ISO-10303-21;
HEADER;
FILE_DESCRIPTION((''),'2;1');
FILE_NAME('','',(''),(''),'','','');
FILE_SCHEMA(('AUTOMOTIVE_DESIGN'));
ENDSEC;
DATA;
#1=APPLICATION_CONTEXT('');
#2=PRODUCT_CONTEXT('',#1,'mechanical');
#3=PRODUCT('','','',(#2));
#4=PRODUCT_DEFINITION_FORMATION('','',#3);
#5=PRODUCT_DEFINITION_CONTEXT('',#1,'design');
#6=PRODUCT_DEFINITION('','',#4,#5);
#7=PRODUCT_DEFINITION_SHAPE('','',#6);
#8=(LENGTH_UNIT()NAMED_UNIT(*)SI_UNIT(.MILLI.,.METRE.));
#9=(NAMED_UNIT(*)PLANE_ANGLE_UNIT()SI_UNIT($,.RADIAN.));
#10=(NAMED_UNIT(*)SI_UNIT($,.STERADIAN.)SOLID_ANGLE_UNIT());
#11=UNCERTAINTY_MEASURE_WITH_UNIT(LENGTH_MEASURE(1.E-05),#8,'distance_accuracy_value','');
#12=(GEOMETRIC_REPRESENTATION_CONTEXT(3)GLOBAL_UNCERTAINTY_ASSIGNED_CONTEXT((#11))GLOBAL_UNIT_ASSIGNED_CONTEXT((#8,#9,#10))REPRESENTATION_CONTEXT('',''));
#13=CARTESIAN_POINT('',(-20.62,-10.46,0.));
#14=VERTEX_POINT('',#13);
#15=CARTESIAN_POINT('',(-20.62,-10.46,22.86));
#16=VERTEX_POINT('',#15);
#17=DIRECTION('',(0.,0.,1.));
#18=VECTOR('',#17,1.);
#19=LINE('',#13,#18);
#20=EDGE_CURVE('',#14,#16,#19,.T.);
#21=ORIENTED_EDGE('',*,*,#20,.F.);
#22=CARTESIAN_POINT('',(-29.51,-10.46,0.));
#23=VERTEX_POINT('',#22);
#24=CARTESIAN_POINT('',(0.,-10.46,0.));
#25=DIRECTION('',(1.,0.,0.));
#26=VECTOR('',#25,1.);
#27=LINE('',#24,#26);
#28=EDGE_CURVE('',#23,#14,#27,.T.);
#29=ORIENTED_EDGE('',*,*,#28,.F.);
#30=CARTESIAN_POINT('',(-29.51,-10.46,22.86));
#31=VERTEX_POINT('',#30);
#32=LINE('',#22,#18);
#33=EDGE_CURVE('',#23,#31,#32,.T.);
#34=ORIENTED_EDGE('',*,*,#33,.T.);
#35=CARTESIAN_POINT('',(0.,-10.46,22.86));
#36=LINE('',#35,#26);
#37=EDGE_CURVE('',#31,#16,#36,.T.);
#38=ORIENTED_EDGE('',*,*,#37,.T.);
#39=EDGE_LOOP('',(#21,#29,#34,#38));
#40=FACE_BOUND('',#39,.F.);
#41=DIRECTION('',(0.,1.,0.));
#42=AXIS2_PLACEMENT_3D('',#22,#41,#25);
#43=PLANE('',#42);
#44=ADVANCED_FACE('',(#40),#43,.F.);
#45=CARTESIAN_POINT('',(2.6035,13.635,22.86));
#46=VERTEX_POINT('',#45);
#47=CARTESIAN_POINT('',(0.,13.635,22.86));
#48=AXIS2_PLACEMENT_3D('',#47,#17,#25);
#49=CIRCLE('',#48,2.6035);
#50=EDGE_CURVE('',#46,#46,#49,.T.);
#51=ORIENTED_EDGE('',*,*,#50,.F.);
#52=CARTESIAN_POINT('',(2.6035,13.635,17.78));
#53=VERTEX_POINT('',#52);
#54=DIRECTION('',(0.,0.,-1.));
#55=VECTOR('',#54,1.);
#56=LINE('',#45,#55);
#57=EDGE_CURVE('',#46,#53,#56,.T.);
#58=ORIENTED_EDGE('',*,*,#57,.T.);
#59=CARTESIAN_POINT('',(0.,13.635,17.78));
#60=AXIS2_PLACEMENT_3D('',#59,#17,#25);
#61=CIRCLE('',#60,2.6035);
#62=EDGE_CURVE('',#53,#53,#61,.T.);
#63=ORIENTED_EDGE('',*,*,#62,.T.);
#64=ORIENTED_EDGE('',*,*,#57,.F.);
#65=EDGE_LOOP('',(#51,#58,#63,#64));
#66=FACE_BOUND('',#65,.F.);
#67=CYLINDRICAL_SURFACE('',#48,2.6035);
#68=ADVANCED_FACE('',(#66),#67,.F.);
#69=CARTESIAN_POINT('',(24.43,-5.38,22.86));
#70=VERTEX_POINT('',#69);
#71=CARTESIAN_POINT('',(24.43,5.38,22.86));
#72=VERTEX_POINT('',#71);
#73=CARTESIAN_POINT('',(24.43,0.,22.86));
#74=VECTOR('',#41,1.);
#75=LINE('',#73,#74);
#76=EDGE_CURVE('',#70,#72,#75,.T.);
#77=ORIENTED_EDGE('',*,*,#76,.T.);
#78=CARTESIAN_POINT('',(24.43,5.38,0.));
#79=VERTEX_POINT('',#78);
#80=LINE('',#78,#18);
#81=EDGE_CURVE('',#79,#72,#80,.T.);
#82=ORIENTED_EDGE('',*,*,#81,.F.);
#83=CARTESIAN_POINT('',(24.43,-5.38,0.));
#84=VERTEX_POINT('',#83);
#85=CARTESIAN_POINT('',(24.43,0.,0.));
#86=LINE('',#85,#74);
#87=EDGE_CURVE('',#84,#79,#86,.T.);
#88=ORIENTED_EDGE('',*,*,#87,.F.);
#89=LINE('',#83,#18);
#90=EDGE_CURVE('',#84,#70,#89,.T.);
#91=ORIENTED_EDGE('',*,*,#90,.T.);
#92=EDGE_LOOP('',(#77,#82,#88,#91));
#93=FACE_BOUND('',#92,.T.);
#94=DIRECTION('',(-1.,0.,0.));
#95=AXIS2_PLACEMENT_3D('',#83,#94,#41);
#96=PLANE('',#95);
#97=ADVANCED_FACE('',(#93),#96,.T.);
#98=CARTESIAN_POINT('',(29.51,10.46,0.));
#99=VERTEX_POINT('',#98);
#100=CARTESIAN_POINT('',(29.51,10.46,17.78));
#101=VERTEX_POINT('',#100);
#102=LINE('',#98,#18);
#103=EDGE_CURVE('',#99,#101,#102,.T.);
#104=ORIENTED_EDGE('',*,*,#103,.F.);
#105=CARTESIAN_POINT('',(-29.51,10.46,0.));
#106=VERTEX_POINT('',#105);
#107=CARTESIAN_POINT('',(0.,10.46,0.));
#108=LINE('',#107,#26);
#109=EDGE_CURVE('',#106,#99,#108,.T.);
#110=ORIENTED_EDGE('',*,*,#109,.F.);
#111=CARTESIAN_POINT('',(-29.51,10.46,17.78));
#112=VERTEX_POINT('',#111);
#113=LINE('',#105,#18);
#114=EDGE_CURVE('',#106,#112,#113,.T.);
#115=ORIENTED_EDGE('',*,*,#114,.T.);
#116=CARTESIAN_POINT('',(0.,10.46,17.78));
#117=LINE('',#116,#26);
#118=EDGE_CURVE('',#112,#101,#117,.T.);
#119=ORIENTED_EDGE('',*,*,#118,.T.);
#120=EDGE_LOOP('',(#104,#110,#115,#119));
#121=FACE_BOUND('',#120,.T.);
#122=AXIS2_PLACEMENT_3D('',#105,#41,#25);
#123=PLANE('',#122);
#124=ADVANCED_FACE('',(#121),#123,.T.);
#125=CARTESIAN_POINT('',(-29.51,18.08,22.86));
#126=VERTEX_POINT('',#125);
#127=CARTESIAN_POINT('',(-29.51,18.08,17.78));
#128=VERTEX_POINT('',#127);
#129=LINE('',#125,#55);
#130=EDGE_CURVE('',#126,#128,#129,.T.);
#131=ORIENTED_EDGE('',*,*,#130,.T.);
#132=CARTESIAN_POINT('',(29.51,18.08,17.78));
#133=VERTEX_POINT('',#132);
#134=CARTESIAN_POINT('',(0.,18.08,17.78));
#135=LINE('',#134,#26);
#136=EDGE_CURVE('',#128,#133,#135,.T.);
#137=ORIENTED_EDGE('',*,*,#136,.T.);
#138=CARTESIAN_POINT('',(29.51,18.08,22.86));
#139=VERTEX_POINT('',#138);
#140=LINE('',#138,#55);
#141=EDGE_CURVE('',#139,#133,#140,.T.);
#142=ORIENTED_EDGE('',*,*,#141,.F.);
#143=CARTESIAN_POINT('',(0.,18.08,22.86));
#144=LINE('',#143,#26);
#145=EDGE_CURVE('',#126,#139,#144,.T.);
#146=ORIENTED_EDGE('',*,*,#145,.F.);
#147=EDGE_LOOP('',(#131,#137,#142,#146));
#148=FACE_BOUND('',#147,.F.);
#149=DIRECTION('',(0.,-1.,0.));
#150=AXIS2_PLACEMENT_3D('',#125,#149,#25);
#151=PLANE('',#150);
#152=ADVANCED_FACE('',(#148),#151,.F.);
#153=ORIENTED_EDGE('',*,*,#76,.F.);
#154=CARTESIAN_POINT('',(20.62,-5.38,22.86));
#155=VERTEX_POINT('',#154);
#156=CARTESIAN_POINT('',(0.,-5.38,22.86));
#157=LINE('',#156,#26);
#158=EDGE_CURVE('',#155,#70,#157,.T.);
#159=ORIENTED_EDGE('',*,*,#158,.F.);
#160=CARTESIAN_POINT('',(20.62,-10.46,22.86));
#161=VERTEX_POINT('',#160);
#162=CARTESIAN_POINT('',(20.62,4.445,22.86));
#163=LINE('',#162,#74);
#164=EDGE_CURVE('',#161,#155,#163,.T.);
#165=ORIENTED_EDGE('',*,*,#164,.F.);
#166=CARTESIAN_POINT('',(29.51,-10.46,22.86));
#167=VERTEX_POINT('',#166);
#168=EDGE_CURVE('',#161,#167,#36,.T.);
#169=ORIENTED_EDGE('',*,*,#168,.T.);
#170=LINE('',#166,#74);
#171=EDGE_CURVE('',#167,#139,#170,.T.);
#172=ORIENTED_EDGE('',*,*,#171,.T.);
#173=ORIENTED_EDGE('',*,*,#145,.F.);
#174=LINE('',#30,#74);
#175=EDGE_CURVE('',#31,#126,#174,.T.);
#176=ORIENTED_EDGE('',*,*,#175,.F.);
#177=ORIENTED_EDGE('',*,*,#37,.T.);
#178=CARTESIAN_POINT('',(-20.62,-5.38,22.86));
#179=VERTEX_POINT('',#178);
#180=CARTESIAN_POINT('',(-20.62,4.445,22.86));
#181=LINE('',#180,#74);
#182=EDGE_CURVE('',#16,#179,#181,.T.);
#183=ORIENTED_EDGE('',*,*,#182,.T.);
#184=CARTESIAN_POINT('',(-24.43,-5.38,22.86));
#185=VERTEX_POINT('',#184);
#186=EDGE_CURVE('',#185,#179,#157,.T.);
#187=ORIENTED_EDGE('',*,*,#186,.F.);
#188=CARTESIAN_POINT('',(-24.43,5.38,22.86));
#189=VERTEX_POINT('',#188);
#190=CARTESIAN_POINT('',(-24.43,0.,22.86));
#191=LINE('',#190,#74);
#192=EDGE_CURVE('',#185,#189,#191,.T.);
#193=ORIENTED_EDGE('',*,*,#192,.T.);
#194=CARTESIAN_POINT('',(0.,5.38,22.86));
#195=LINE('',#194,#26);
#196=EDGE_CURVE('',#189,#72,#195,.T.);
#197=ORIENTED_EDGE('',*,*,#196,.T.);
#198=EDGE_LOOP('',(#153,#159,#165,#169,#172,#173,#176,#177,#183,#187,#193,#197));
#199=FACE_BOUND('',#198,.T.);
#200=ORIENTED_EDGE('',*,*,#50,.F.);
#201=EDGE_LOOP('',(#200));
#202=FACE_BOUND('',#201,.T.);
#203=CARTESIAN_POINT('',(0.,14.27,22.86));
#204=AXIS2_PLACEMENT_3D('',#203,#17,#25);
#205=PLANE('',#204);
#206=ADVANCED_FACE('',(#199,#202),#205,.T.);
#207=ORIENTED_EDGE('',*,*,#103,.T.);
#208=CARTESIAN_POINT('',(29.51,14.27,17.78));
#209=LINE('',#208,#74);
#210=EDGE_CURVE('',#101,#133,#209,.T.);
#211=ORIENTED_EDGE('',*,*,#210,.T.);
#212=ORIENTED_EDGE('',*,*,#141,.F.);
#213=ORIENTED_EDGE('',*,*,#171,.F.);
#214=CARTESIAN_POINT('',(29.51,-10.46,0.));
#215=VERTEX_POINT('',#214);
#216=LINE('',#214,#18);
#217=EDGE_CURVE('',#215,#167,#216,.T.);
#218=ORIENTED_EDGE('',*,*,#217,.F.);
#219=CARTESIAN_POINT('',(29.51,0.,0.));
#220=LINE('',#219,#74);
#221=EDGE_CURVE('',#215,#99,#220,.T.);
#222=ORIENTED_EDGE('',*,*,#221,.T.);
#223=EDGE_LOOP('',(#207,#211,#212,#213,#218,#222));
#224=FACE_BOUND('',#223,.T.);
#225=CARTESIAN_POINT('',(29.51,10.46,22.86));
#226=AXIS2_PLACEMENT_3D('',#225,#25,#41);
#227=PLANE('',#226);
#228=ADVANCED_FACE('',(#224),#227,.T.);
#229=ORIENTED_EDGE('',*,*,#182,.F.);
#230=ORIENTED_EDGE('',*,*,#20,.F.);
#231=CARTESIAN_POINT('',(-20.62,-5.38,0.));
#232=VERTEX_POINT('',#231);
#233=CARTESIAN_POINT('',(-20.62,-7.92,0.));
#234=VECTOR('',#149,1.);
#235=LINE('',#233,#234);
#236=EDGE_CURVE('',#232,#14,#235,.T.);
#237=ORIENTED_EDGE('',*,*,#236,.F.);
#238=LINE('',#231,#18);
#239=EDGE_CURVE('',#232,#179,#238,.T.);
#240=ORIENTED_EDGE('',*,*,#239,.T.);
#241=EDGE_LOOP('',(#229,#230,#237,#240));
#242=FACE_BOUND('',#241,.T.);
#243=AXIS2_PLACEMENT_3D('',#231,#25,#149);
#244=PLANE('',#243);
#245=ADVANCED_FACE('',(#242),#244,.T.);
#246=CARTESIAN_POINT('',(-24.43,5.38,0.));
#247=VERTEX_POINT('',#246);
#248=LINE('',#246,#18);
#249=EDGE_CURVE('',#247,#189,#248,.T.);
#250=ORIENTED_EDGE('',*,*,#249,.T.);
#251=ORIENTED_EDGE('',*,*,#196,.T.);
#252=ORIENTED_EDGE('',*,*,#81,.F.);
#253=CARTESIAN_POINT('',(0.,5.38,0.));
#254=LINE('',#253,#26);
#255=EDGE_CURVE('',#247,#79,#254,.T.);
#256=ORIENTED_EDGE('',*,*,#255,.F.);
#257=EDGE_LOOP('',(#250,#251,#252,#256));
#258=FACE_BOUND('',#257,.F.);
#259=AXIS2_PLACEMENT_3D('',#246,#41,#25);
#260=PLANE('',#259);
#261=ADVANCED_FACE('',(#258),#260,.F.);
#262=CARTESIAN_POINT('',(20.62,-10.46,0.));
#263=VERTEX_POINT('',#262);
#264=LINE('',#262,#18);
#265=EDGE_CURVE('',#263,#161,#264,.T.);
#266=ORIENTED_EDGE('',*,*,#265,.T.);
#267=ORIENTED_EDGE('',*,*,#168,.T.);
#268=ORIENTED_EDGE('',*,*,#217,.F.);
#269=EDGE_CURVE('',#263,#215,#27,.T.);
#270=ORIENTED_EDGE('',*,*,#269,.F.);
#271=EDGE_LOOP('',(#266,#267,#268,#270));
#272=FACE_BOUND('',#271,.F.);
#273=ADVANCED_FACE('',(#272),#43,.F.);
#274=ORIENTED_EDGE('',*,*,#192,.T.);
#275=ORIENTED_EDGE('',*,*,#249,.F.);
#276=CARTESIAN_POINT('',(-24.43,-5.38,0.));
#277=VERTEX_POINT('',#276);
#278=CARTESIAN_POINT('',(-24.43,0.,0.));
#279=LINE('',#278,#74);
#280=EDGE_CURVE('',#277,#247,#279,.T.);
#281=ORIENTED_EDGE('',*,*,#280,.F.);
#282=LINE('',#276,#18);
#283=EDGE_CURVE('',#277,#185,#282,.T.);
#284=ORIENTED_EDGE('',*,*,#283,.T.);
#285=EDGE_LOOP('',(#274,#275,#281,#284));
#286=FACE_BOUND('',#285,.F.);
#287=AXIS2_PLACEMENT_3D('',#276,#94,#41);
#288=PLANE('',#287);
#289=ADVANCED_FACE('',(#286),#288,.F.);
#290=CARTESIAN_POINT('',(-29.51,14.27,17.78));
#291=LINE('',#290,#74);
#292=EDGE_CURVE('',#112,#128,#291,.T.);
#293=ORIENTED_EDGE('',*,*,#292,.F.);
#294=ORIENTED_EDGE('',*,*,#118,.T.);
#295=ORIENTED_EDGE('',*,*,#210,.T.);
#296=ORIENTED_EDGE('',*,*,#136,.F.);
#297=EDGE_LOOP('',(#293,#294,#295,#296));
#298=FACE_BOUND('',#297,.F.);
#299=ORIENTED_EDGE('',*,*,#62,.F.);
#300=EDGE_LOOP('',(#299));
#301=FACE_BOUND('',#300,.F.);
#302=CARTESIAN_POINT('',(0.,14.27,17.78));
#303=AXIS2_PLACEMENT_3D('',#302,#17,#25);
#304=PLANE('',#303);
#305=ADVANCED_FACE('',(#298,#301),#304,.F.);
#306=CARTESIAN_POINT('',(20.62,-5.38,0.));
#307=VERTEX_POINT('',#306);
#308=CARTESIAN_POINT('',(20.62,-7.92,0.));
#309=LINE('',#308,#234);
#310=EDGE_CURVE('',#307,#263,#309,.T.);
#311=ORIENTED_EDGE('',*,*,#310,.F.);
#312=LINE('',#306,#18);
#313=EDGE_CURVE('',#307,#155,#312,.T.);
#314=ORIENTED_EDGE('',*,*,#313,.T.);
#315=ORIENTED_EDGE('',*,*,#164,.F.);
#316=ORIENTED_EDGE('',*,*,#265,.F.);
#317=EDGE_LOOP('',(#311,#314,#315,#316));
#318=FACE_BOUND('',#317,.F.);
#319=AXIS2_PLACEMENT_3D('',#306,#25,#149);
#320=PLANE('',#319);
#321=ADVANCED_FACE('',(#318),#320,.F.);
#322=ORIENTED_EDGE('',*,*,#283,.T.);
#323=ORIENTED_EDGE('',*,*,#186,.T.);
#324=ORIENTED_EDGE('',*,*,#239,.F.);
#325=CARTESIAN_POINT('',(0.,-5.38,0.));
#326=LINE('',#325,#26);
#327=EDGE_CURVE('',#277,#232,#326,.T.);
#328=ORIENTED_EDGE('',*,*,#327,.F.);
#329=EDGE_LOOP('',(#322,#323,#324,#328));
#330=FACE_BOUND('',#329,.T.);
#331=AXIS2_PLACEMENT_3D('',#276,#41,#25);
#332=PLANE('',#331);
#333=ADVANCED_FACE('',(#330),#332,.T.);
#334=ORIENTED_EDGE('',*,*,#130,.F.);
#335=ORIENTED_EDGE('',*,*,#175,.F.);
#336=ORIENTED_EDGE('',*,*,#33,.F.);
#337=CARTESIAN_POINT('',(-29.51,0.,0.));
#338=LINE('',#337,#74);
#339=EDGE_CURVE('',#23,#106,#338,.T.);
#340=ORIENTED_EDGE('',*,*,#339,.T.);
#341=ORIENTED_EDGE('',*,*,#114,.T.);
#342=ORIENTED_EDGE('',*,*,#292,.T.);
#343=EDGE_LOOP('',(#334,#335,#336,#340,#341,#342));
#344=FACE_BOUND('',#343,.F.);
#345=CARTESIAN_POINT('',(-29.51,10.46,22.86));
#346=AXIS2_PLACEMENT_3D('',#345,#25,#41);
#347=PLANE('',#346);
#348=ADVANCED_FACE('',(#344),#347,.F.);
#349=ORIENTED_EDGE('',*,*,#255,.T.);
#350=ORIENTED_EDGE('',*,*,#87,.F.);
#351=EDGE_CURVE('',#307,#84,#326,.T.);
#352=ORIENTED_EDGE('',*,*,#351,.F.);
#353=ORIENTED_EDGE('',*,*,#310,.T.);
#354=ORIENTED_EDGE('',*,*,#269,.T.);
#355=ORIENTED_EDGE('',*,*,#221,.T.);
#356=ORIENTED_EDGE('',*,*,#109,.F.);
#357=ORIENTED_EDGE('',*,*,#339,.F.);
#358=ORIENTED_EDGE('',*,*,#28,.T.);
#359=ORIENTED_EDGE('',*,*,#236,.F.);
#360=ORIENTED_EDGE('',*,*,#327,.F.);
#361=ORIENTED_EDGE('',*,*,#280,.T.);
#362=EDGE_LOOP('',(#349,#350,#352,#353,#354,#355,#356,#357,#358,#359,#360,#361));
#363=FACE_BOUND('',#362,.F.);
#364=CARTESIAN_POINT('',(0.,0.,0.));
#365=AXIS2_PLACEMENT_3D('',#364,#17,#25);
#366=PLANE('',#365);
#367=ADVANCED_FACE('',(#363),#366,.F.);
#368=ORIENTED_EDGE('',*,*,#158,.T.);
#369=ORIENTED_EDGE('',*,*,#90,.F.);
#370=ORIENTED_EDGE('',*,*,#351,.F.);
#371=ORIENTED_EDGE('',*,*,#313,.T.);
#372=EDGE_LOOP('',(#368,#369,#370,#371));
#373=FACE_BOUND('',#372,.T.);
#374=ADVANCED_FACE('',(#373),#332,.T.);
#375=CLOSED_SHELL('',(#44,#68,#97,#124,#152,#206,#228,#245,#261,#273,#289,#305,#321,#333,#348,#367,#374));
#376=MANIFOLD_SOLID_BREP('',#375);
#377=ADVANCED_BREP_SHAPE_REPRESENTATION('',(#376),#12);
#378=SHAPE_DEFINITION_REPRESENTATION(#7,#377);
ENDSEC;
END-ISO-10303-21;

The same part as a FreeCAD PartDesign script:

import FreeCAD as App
import Part
import Sketcher

V = App.Vector
Q = App.Units.Quantity

doc = App.newDocument("Part")
body = doc.addObject("PartDesign::Body", "Body")

sketch1 = body.newObject("Sketcher::SketchObject", "Sketch")
sketch1.AttachmentSupport = (doc.getObject("XY_Plane"), [""])
sketch1.MapMode = "FlatFace"
sketch1.addGeometry([
    Part.LineSegment(V(-30, 10, 0), V(-30, -10, 0)),
    Part.LineSegment(V(-30, -10, 0), V(30, -10, 0)),
    Part.LineSegment(V(30, -10, 0), V(30, 10, 0)),
    Part.LineSegment(V(30, 10, 0), V(-30, 10, 0)),
    Part.LineSegment(V(24, -5, 0), V(-24, -5, 0)),
    Part.LineSegment(V(-24, -5, 0), V(-24, 5, 0)),
    Part.LineSegment(V(-24, 5, 0), V(24, 5, 0)),
    Part.LineSegment(V(24, 5, 0), V(24, -5, 0)),
], False)
sketch1.addConstraint([
    Sketcher.Constraint("Coincident", 0, 2, 1, 1),
    Sketcher.Constraint("Coincident", 1, 2, 2, 1),
    Sketcher.Constraint("Coincident", 2, 2, 3, 1),
    Sketcher.Constraint("Coincident", 3, 2, 0, 1),
    Sketcher.Constraint("Coincident", 4, 2, 5, 1),
    Sketcher.Constraint("Coincident", 5, 2, 6, 1),
    Sketcher.Constraint("Coincident", 6, 2, 7, 1),
    Sketcher.Constraint("Coincident", 7, 2, 4, 1),
    Sketcher.Constraint("Vertical", 0),
    Sketcher.Constraint("Horizontal", 1),
    Sketcher.Constraint("Vertical", 2),
    Sketcher.Constraint("Horizontal", 3),
    Sketcher.Constraint("Horizontal", 4),
    Sketcher.Constraint("Vertical", 5),
    Sketcher.Constraint("Horizontal", 6),
    Sketcher.Constraint("Vertical", 7),
    Sketcher.Constraint("Symmetric", 0, 2, 2, 2, -1, 1),
    Sketcher.Constraint("Symmetric", 4, 2, 6, 2, -1, 1),
    Sketcher.Constraint("DistanceX", 0, 2, 4, 2, Q("0.2 in")),
    Sketcher.Constraint("DistanceY", 0, 2, 4, 2, Q("0.2 in")),
    Sketcher.Constraint("DistanceX", 1, 1, 1, 2, 59.02),
    Sketcher.Constraint("DistanceY", 0, 2, 0, 1, 20.92),
])
pad1 = body.newObject("PartDesign::Pad", "Pad")
pad1.Profile = sketch1
pad1.Length = Q("0.9 in")

sketch2 = body.newObject("Sketcher::SketchObject", "Sketch001")
sketch2.AttachmentSupport = (doc.getObject("XY_Plane"), [""])
sketch2.MapMode = "FlatFace"
sketch2.AttachmentOffset = App.Placement(V(0, 0, 0.9 * 25.4), App.Rotation())
sketch2.addGeometry([
    Part.LineSegment(V(-29.5, 18.1, 0), V(-29.5, 10.5, 0)),
    Part.LineSegment(V(-29.5, 10.5, 0), V(29.5, 10.5, 0)),
    Part.LineSegment(V(29.5, 10.5, 0), V(29.5, 18.1, 0)),
    Part.LineSegment(V(29.5, 18.1, 0), V(-29.5, 18.1, 0)),
    Part.Circle(V(0, 13.6, 0), V(0, 0, 1), 2.6),
], False)
sketch2.addConstraint([
    Sketcher.Constraint("Coincident", 0, 2, 1, 1),
    Sketcher.Constraint("Coincident", 1, 2, 2, 1),
    Sketcher.Constraint("Coincident", 2, 2, 3, 1),
    Sketcher.Constraint("Coincident", 3, 2, 0, 1),
    Sketcher.Constraint("Vertical", 0),
    Sketcher.Constraint("Horizontal", 1),
    Sketcher.Constraint("Vertical", 2),
    Sketcher.Constraint("Horizontal", 3),
    Sketcher.Constraint("PointOnObject", 4, 3, -2),
    Sketcher.Constraint("Diameter", 4, Q("0.205 in")),
    Sketcher.Constraint("DistanceY", 0, 2, 0, 1, Q("0.3 in")),
    Sketcher.Constraint("DistanceY", 0, 2, 4, 3, Q("0.125 in")),
    Sketcher.Constraint("DistanceX", 1, 1, 1, 2, 59.02),
    Sketcher.Constraint("DistanceY", -1, 1, 4, 3, 13.635),
    Sketcher.Constraint("DistanceX", 0, 2, -1, 1, 29.51),
])
pad2 = body.newObject("PartDesign::Pad", "Pad001")
pad2.Profile = sketch2
pad2.Length = Q("0.2 in")
pad2.Reversed = True

sketch3 = body.newObject("Sketcher::SketchObject", "Sketch002")
sketch3.AttachmentSupport = (doc.getObject("XY_Plane"), [""])
sketch3.MapMode = "FlatFace"
sketch3.addGeometry([
    Part.LineSegment(V(-21, -10, 0), V(-21, -5, 0)),
    Part.LineSegment(V(-21, -5, 0), V(21, -5, 0)),
    Part.LineSegment(V(21, -5, 0), V(21, -10, 0)),
    Part.LineSegment(V(21, -10, 0), V(-21, -10, 0)),
], False)
sketch3.addConstraint([
    Sketcher.Constraint("Coincident", 0, 2, 1, 1),
    Sketcher.Constraint("Coincident", 1, 2, 2, 1),
    Sketcher.Constraint("Coincident", 2, 2, 3, 1),
    Sketcher.Constraint("Coincident", 3, 2, 0, 1),
    Sketcher.Constraint("Vertical", 0),
    Sketcher.Constraint("Horizontal", 1),
    Sketcher.Constraint("Vertical", 2),
    Sketcher.Constraint("Horizontal", 3),
    Sketcher.Constraint("DistanceY", 0, 1, 0, 2, Q("0.2 in")),
    Sketcher.Constraint("DistanceX", 1, 1, 1, 2, 41.24),
    Sketcher.Constraint("DistanceX", 0, 2, -1, 1, 20.62),
    Sketcher.Constraint("DistanceY", 0, 2, -1, 1, 5.38),
])
pocket1 = body.newObject("PartDesign::Pocket", "Pocket")
pocket1.Profile = sketch3
pocket1.Type = "ThroughAll"
pocket1.Reversed = True

doc.recompute()
